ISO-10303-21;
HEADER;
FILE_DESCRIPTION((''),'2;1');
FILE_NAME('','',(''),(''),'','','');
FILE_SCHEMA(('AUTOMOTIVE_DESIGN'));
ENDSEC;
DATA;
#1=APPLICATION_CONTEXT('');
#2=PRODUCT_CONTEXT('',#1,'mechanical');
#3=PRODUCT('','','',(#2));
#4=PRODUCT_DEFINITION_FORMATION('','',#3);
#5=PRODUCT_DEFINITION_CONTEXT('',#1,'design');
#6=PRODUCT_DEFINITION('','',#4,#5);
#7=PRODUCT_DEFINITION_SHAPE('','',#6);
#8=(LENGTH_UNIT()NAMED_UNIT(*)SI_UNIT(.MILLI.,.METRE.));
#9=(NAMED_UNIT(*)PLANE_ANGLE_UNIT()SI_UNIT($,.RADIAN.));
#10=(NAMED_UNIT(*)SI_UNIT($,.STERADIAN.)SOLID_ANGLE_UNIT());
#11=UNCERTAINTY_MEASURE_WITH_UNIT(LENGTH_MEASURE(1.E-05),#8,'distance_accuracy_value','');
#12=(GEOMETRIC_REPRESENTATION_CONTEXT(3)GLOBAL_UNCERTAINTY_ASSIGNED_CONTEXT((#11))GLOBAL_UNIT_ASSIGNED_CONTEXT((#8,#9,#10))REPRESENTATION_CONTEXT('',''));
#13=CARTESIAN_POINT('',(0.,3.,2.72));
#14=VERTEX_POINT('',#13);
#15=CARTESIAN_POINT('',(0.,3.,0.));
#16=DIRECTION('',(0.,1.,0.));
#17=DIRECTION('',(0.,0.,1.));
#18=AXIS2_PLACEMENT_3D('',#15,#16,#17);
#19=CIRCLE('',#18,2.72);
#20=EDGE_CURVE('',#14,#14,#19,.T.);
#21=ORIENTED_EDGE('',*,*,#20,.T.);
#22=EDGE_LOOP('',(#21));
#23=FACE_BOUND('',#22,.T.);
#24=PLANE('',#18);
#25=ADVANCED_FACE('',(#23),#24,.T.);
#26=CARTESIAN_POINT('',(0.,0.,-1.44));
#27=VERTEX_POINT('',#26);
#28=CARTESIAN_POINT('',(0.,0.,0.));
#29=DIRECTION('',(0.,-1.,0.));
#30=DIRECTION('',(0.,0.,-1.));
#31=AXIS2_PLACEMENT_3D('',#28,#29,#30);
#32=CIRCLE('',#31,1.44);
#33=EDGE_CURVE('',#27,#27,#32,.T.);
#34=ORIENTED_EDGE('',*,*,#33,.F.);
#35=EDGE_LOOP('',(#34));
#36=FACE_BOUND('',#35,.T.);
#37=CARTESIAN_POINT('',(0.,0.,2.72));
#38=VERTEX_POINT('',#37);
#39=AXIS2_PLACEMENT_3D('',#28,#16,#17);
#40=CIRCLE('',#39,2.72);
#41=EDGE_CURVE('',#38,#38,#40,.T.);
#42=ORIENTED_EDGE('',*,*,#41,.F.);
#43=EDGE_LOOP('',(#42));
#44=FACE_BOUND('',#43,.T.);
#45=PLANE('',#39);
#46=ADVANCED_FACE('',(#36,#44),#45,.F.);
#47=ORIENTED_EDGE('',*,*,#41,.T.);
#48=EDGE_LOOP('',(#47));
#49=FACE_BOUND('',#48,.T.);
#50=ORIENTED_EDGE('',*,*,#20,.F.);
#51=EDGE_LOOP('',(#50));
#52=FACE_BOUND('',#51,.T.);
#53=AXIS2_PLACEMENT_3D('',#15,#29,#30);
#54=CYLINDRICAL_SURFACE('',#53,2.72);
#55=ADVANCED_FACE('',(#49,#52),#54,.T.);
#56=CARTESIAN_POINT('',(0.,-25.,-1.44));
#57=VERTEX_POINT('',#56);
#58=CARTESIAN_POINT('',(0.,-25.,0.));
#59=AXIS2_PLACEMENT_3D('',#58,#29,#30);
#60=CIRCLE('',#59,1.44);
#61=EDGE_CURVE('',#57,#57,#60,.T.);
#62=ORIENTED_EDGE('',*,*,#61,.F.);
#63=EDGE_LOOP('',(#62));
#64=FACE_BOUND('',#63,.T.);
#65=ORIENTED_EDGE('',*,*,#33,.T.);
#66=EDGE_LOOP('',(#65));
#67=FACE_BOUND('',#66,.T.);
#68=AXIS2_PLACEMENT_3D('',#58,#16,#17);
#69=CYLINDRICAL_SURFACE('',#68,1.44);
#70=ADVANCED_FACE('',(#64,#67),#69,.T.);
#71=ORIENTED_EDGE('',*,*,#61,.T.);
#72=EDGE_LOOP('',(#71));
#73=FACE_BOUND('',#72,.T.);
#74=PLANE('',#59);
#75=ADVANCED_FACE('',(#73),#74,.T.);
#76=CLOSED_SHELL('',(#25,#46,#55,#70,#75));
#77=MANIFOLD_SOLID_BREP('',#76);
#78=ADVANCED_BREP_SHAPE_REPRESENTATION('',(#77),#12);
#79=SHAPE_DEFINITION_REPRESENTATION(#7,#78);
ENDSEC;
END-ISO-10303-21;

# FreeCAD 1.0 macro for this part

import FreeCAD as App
import Part
import Sketcher
Q = App.Units.Quantity

doc = App.newDocument("Part")
body = doc.addObject("PartDesign::Body", "Body")

# Sketch on XZ plane
sketch1 = body.newObject("Sketcher::SketchObject", "Sketch")
sketch1.AttachmentSupport = (doc.getObject("XZ_Plane"), [""])
sketch1.MapMode = "FlatFace"
sketch1.addGeometry(Part.Circle(App.Vector(0, 0, 0), App.Vector(0, 0, 1), 2.7), False)
sketch1.addConstraint([
    Sketcher.Constraint("Coincident", 0, 3, -1, 1),
    Sketcher.Constraint("Diameter", 0, Q("5.44 mm")),
])
pad1 = body.newObject("PartDesign::Pad", "Pad")
pad1.Profile = sketch1
pad1.Length = 3
pad1.Reversed = True

# Sketch on XZ plane
sketch2 = body.newObject("Sketcher::SketchObject", "Sketch001")
sketch2.AttachmentSupport = (doc.getObject("XZ_Plane"), [""])
sketch2.MapMode = "FlatFace"
sketch2.addGeometry(Part.Circle(App.Vector(0, 0, 0), App.Vector(0, 0, 1), 1.4), False)
sketch2.addConstraint([
    Sketcher.Constraint("Coincident", 0, 3, -1, 1),
    Sketcher.Constraint("Diameter", 0, Q("2.88 mm")),
])
pad2 = body.newObject("PartDesign::Pad", "Pad001")
pad2.Profile = sketch2
pad2.Length = 25

doc.recompute()
